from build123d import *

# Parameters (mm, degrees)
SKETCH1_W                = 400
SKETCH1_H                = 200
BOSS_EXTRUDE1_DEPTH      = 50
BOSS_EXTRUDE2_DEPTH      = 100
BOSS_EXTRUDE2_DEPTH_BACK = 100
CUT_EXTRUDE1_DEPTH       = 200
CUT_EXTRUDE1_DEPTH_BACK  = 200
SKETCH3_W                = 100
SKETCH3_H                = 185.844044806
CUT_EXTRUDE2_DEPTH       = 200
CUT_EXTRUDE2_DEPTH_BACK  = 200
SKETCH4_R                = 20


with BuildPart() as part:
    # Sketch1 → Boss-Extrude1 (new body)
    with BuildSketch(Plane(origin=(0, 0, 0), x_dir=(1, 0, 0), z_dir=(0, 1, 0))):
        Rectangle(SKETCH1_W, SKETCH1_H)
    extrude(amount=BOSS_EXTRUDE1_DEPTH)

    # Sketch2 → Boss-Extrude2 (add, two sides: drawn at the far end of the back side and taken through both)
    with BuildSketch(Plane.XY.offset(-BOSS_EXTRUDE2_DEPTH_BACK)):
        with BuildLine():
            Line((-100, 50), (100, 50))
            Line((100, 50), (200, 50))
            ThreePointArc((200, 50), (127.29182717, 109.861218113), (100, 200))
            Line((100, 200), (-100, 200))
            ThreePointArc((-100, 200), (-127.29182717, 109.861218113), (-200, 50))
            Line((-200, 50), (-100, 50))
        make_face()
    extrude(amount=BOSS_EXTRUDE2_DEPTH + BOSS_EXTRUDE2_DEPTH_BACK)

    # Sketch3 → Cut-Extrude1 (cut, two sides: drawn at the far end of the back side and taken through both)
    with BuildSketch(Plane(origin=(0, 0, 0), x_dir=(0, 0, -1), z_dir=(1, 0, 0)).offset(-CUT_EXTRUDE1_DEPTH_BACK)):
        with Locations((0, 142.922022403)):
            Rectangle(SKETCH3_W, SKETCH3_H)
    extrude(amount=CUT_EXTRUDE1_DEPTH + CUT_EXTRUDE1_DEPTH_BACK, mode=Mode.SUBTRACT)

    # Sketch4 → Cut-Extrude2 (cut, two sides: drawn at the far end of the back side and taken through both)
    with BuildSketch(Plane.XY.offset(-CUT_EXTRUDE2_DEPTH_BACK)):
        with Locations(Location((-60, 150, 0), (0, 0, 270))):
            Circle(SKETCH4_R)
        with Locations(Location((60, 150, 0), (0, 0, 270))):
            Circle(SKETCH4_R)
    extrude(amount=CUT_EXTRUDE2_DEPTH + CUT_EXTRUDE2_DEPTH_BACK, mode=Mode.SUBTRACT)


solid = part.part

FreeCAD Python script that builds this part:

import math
import FreeCAD as App
import Part
import Sketcher
Q = App.Units.Quantity

doc = App.newDocument("Part")
params = doc.addObject("Spreadsheet::Sheet", "Params")
for row, (alias, value) in enumerate([
    ("sketch1_width", "400 mm"),
    ("sketch1_height", "200 mm"),
    ("pad1_length", "50 mm"),
    ("sketch2_radius", "162.5 mm"),
    ("sketch2_width", "200 mm"),
    ("sketch2_width2", "400 mm"),
    ("pad2_length", "100 mm"),
    ("pad2_length2", "100 mm"),
    ("sketch3_height", "100 mm"),
    ("sketch4_diameter", "40 mm"),
], start=1):
    params.set(f"A{row}", alias)
    params.set(f"B{row}", "=" + value)
    params.setAlias(f"B{row}", alias)

body = doc.addObject("PartDesign::Body", "Body")

sketch1 = doc.addObject("Sketcher::SketchObject", "Sketch")
body.addObject(sketch1)
sketch1.AttachmentSupport = (doc.XZ_Plane, [""])
sketch1.MapMode = "FlatFace"
sketch1.addGeometry(Part.LineSegment(App.Vector(-200, -100, 0), App.Vector(-200, 100, 0)), False)
sketch1.addGeometry(Part.LineSegment(App.Vector(-200, 100, 0), App.Vector(200, 100, 0)), False)
sketch1.addGeometry(Part.LineSegment(App.Vector(200, 100, 0), App.Vector(200, -100, 0)), False)
sketch1.addGeometry(Part.LineSegment(App.Vector(200, -100, 0), App.Vector(-200, -100, 0)), False)
sketch1.addConstraint(Sketcher.Constraint("Coincident", 0, 2, 1, 1))
sketch1.addConstraint(Sketcher.Constraint("Coincident", 1, 2, 2, 1))
sketch1.addConstraint(Sketcher.Constraint("Coincident", 2, 2, 3, 1))
sketch1.addConstraint(Sketcher.Constraint("Coincident", 3, 2, 0, 1))
sketch1.addConstraint(Sketcher.Constraint("Vertical", 0))
sketch1.addConstraint(Sketcher.Constraint("Horizontal", 1))
sketch1.addConstraint(Sketcher.Constraint("Vertical", 2))
sketch1.addConstraint(Sketcher.Constraint("Horizontal", 3))
sketch1.addConstraint(Sketcher.Constraint("Symmetric", 0, 2, 2, 2, -1, 1))
sketch1.addConstraint(Sketcher.Constraint("DistanceX", 1, 1, 1, 2, Q("400 mm")))
sketch1.addConstraint(Sketcher.Constraint("DistanceY", 0, 1, 0, 2, Q("200 mm")))
sketch1.setExpression("Constraints[9]", "Params.sketch1_width")
sketch1.setExpression("Constraints[10]", "Params.sketch1_height")
pad1 = doc.addObject("PartDesign::Pad", "Pad")
body.addObject(pad1)
pad1.Profile = sketch1
pad1.setExpression("Length", "Params.pad1_length")
pad1.Reversed = True

sketch2 = doc.addObject("Sketcher::SketchObject", "Sketch001")
body.addObject(sketch2)
sketch2.AttachmentSupport = (doc.XY_Plane, [""])
sketch2.MapMode = "FlatFace"
sketch2.addGeometry(Part.ArcOfCircle(Part.Circle(App.Vector(262.5, 200, 0), App.Vector(0, 0, 1), 162.5), math.radians(180), math.radians(247.380135)), False)
sketch2.addGeometry(Part.LineSegment(App.Vector(100, 200, 0), App.Vector(-100, 200, 0)), False)
sketch2.addGeometry(Part.ArcOfCircle(Part.Circle(App.Vector(-262.5, 200, 0), App.Vector(0, 0, 1), 162.5), math.radians(-67.380135), math.radians(0)), False)
sketch2.addGeometry(Part.LineSegment(App.Vector(-200, 50, 0), App.Vector(200, 50, 0)), False)
sketch2.addConstraint(Sketcher.Constraint("Coincident", 0, 1, 1, 1))
sketch2.addConstraint(Sketcher.Constraint("Coincident", 1, 2, 2, 2))
sketch2.addConstraint(Sketcher.Constraint("Coincident", 2, 1, 3, 1))
sketch2.addConstraint(Sketcher.Constraint("Coincident", 3, 2, 0, 2))
sketch2.addConstraint(Sketcher.Constraint("Horizontal", 1))
sketch2.addConstraint(Sketcher.Constraint("Horizontal", 3))
sketch2.addConstraint(Sketcher.Constraint("Equal", 0, 2))
sketch2.addConstraint(Sketcher.Constraint("Symmetric", 0, 3, 2, 3, -2))
sketch2.addConstraint(Sketcher.Constraint("Horizontal", 2, 3, 0, 1))
sketch2.addConstraint(Sketcher.Constraint("Radius", 0, Q("162.5 mm")))
sketch2.addConstraint(Sketcher.Constraint("DistanceX", 1, 2, 1, 1, Q("200 mm")))
sketch2.addConstraint(Sketcher.Constraint("DistanceX", 3, 1, 3, 2, Q("400 mm")))
sketch2.addConstraint(Sketcher.Constraint("DistanceY", -1, 1, 0, 3, Q("200 mm")))
sketch2.setExpression("Constraints[9]", "Params.sketch2_radius")
sketch2.setExpression("Constraints[10]", "Params.sketch2_width")
sketch2.setExpression("Constraints[11]", "Params.sketch2_width2")
pad2 = doc.addObject("PartDesign::Pad", "Pad001")
body.addObject(pad2)
pad2.Profile = sketch2
pad2.Type = "TwoLengths"
pad2.setExpression("Length", "Params.pad2_length")
pad2.setExpression("Length2", "Params.pad2_length2")

sketch3 = doc.addObject("Sketcher::SketchObject", "Sketch002")
body.addObject(sketch3)
sketch3.AttachmentSupport = (doc.YZ_Plane, [""])
sketch3.MapMode = "FlatFace"
sketch3.addGeometry(Part.LineSegment(App.Vector(235.844045, 50, 0), App.Vector(50, 50, 0)), False)
sketch3.addGeometry(Part.LineSegment(App.Vector(50, 50, 0), App.Vector(50, -50, 0)), False)
sketch3.addGeometry(Part.LineSegment(App.Vector(50, -50, 0), App.Vector(235.844045, -50, 0)), False)
sketch3.addGeometry(Part.LineSegment(App.Vector(235.844045, -50, 0), App.Vector(235.844045, 50, 0)), False)
sketch3.addConstraint(Sketcher.Constraint("Coincident", 0, 2, 1, 1))
sketch3.addConstraint(Sketcher.Constraint("Coincident", 1, 2, 2, 1))
sketch3.addConstraint(Sketcher.Constraint("Coincident", 2, 2, 3, 1))
sketch3.addConstraint(Sketcher.Constraint("Coincident", 3, 2, 0, 1))
sketch3.addConstraint(Sketcher.Constraint("Horizontal", 0))
sketch3.addConstraint(Sketcher.Constraint("Vertical", 1))
sketch3.addConstraint(Sketcher.Constraint("Horizontal", 2))
sketch3.addConstraint(Sketcher.Constraint("Vertical", 3))
sketch3.addConstraint(Sketcher.Constraint("DistanceY", 1, 2, 1, 1, Q("100 mm")))
sketch3.addConstraint(Sketcher.Constraint("DistanceX", -1, 1, 0, 2, Q("50 mm")))
sketch3.addConstraint(Sketcher.Constraint("DistanceY", -1, 1, 0, 2, Q("50 mm")))
sketch3.addConstraint(Sketcher.Constraint("DistanceX", 0, 2, 0, 1, Q("185.844045 mm")))
sketch3.setExpression("Constraints[8]", "Params.sketch3_height")
pocket1 = doc.addObject("PartDesign::Pocket", "Pocket")
body.addObject(pocket1)
pocket1.Profile = sketch3
pocket1.Type = "ThroughAll"
pocket1.Midplane = True

sketch4 = doc.addObject("Sketcher::SketchObject", "Sketch003")
body.addObject(sketch4)
sketch4.AttachmentSupport = (doc.XY_Plane, [""])
sketch4.MapMode = "FlatFace"
sketch4.addGeometry(Part.Circle(App.Vector(-60, 150, 0), App.Vector(0, 0, 1), 20), False)
sketch4.addGeometry(Part.Circle(App.Vector(60, 150, 0), App.Vector(0, 0, 1), 20), False)
sketch4.addConstraint(Sketcher.Constraint("Equal", 0, 1))
sketch4.addConstraint(Sketcher.Constraint("Symmetric", 0, 3, 1, 3, -2))
sketch4.addConstraint(Sketcher.Constraint("Diameter", 0, Q("40 mm")))
sketch4.addConstraint(Sketcher.Constraint("DistanceX", 0, 3, -1, 1, Q("60 mm")))
sketch4.addConstraint(Sketcher.Constraint("DistanceY", -1, 1, 0, 3, Q("150 mm")))
sketch4.setExpression("Constraints[2]", "Params.sketch4_diameter")
pocket2 = doc.addObject("PartDesign::Pocket", "Pocket001")
body.addObject(pocket2)
pocket2.Profile = sketch4
pocket2.Type = "ThroughAll"
pocket2.Midplane = True

doc.recompute()
